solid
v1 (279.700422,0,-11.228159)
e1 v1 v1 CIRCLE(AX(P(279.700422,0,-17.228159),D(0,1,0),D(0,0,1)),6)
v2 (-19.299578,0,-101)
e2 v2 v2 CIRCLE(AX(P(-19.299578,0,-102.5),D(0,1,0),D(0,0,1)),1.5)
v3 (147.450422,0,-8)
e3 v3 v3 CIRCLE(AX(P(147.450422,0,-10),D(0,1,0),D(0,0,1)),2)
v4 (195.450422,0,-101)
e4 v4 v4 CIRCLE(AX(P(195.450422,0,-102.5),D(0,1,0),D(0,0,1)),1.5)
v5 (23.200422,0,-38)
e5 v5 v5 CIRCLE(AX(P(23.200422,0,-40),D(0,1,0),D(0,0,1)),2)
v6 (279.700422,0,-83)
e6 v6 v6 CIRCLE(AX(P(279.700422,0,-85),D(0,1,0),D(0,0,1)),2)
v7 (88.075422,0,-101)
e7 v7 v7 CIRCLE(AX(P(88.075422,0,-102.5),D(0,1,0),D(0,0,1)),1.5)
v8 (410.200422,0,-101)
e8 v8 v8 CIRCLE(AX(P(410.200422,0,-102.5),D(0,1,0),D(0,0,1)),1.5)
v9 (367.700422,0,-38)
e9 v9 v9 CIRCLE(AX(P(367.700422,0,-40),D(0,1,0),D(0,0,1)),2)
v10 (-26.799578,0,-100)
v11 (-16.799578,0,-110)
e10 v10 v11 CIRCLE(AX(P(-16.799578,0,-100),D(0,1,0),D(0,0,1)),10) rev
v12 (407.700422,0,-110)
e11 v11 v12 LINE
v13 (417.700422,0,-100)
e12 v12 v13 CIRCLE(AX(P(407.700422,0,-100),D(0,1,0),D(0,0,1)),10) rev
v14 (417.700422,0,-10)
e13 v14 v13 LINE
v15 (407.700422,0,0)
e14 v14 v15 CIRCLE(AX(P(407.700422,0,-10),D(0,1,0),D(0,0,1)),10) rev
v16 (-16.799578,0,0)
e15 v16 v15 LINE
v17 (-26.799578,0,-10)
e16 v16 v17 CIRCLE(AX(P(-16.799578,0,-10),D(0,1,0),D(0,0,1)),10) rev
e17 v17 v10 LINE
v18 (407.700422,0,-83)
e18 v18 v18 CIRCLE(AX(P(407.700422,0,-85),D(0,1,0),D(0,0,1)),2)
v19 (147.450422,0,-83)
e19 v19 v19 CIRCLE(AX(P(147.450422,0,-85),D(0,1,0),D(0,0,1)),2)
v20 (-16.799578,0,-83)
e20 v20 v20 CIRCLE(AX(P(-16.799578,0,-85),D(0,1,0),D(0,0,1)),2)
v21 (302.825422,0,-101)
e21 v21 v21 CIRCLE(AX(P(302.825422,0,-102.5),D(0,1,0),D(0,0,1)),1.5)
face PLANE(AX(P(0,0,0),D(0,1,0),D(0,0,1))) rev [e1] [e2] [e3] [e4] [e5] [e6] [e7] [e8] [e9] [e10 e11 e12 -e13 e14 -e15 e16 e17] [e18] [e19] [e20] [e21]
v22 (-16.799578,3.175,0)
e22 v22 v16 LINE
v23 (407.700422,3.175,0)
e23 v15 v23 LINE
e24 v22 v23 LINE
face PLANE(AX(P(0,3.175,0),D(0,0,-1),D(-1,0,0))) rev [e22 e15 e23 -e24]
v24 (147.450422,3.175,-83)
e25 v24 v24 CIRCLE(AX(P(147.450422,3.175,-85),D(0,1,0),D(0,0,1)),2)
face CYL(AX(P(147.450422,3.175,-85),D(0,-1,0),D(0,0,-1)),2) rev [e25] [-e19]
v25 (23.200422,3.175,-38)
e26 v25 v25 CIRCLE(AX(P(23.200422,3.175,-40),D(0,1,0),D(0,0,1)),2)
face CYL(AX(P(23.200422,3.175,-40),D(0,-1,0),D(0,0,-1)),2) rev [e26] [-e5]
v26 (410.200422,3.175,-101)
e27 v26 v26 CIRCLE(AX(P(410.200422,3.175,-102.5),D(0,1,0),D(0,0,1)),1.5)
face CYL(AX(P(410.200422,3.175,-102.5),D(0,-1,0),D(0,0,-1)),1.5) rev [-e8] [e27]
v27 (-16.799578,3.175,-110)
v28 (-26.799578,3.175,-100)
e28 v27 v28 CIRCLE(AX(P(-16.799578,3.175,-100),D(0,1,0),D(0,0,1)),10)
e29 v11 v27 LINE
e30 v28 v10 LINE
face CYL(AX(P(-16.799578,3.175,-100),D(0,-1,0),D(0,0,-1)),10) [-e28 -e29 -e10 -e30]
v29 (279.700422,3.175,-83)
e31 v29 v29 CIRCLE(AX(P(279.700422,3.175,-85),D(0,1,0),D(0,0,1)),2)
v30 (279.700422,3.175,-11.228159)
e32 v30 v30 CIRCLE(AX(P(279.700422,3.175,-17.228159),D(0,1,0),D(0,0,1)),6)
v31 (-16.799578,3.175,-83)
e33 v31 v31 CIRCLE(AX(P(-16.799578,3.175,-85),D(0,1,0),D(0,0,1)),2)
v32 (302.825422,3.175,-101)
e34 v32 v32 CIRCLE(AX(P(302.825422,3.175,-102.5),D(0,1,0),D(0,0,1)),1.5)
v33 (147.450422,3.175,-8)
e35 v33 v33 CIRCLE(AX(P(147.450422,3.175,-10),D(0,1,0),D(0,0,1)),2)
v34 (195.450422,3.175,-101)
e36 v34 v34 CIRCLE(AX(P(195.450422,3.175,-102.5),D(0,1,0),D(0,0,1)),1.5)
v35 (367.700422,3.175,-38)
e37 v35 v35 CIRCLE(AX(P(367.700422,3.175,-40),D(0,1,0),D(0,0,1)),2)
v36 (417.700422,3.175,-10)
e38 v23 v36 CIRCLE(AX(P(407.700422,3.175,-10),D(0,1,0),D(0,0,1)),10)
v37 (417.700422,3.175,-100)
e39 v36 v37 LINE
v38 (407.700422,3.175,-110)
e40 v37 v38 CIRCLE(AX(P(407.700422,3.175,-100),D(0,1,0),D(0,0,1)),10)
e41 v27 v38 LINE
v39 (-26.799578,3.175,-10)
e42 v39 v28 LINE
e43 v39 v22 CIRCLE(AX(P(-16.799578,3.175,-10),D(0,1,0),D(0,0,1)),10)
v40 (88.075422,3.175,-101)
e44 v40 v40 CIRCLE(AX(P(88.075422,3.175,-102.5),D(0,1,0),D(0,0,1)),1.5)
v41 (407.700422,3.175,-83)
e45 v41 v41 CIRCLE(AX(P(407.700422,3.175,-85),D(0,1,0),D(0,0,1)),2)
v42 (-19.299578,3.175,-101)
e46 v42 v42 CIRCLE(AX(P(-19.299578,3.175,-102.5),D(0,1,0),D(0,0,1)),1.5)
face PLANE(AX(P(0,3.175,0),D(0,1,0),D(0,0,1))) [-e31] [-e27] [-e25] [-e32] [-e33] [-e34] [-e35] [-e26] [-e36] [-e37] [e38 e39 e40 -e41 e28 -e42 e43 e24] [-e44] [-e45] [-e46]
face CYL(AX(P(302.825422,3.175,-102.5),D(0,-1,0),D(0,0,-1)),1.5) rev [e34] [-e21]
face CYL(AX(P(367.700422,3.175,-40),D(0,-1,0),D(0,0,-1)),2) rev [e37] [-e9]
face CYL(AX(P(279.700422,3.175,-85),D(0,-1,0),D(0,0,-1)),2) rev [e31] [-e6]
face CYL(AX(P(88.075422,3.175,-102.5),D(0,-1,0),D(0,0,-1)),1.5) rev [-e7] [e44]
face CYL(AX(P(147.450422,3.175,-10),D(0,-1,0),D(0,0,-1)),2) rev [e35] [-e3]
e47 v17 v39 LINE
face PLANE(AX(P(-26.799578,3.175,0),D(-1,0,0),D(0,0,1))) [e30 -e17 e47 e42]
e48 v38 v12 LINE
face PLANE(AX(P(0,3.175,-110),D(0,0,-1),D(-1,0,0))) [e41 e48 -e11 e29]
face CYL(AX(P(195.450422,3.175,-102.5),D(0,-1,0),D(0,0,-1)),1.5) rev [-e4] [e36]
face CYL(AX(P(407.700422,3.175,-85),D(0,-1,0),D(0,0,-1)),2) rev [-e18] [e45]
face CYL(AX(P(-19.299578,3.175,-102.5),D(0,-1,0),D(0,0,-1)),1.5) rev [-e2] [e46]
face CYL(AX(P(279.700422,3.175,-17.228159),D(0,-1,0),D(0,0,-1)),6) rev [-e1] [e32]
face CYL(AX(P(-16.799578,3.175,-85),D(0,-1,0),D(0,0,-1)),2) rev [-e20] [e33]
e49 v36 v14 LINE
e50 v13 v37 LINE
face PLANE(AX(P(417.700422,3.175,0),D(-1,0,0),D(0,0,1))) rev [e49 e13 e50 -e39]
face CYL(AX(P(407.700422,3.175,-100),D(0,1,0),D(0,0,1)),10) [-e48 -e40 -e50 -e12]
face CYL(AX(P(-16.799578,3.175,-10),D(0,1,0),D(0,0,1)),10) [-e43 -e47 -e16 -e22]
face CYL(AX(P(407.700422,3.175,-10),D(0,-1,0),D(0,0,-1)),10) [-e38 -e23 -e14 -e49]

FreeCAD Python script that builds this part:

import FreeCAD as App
import Part
import Sketcher

V = App.Vector


def edges_at(feature, points):
    """Names of the edges that pass closest to the given points."""
    edges = feature.Shape.Edges
    near = lambda p: min(range(len(edges)), key=lambda i: edges[i].distToShape(Part.Vertex(*p))[0])
    return sorted({f"Edge{near(p) + 1}" for p in points})

doc = App.newDocument("Part")
body = doc.addObject("PartDesign::Body", "Body")

# Sketch on XZ plane
sketch1 = doc.addObject("Sketcher::SketchObject", "Sketch")
body.addObject(sketch1)
sketch1.AttachmentSupport = (doc.XZ_Plane, [""])
sketch1.MapMode = "FlatFace"
sketch1.addGeometry([
    Part.LineSegment(V(417.700422, -110, 0), V(-26.799578, -110, 0)),  # 0
    Part.LineSegment(V(-26.799578, -110, 0), V(-26.799578, 0, 0)),  # 1
    Part.LineSegment(V(-26.799578, 0, 0), V(417.700422, 0, 0)),  # 2
    Part.LineSegment(V(417.700422, 0, 0), V(417.700422, -110, 0)),  # 3
    Part.Circle(V(147.450422, -10, 0), V(0, 0, 1), 2),  # 4
    Part.Circle(V(23.200422, -40, 0), V(0, 0, 1), 2),  # 5
    Part.Circle(V(279.700422, -17.228159, 0), V(0, 0, 1), 6),  # 6
    Part.Circle(V(367.700422, -40, 0), V(0, 0, 1), 2),  # 7
    Part.Circle(V(-16.799578, -85, 0), V(0, 0, 1), 2),  # 8
    Part.Circle(V(-19.299578, -102.5, 0), V(0, 0, 1), 1.5),  # 9
    Part.Circle(V(147.450422, -85, 0), V(0, 0, 1), 2),  # 10
    Part.Circle(V(88.075422, -102.5, 0), V(0, 0, 1), 1.5),  # 11
    Part.Circle(V(279.700422, -85, 0), V(0, 0, 1), 2),  # 12
    Part.Circle(V(195.450422, -102.5, 0), V(0, 0, 1), 1.5),  # 13
    Part.Circle(V(302.825422, -102.5, 0), V(0, 0, 1), 1.5),  # 14
    Part.Circle(V(407.700422, -85, 0), V(0, 0, 1), 2),  # 15
    Part.Circle(V(410.200422, -102.5, 0), V(0, 0, 1), 1.5),  # 16
], False)
sketch1.addConstraint([
    Sketcher.Constraint("Coincident", 0, 2, 1, 1),
    Sketcher.Constraint("Coincident", 1, 2, 2, 1),
    Sketcher.Constraint("Coincident", 2, 2, 3, 1),
    Sketcher.Constraint("Coincident", 3, 2, 0, 1),
    Sketcher.Constraint("Horizontal", 0),
    Sketcher.Constraint("Vertical", 1),
    Sketcher.Constraint("Horizontal", 2),
    Sketcher.Constraint("Vertical", 3),
    Sketcher.Constraint("Equal", 4, 5),
    Sketcher.Constraint("Equal", 5, 7),
    Sketcher.Constraint("Equal", 7, 8),
    Sketcher.Constraint("Equal", 8, 10),
    Sketcher.Constraint("Equal", 9, 11),
    Sketcher.Constraint("Equal", 10, 12),
    Sketcher.Constraint("Equal", 11, 13),
    Sketcher.Constraint("Equal", 13, 14),
    Sketcher.Constraint("Equal", 12, 15),
    Sketcher.Constraint("Equal", 14, 16),
    Sketcher.Constraint("PointOnObject", 1, 2, -1),
    Sketcher.Constraint("Horizontal", 5, 3, 7, 3),
    Sketcher.Constraint("Horizontal", 8, 3, 10, 3),
    Sketcher.Constraint("Horizontal", 9, 3, 11, 3),
    Sketcher.Constraint("Horizontal", 10, 3, 12, 3),
    Sketcher.Constraint("Horizontal", 11, 3, 13, 3),
    Sketcher.Constraint("Horizontal", 13, 3, 14, 3),
    Sketcher.Constraint("Horizontal", 12, 3, 15, 3),
    Sketcher.Constraint("Horizontal", 14, 3, 16, 3),
    Sketcher.Constraint("Vertical", 4, 3, 10, 3),
    Sketcher.Constraint("Vertical", 6, 3, 12, 3),
    Sketcher.Constraint("Diameter", 4, 4.0),
    Sketcher.Constraint("Diameter", 6, 12.0),
    Sketcher.Constraint("Diameter", 9, 3.0),
    Sketcher.Constraint("DistanceY", 1, 1, 1, 2, 110.0),
    Sketcher.Constraint("DistanceX", 0, 2, 0, 1, 444.5),
    Sketcher.Constraint("DistanceY", 4, 3, -1, 1, 10.0),
    Sketcher.Constraint("DistanceY", 5, 3, -1, 1, 40.0),
    Sketcher.Constraint("DistanceY", 8, 3, -1, 1, 85.0),
    Sketcher.Constraint("DistanceX", 6, 3, 7, 3, 88.0),
    Sketcher.Constraint("DistanceX", 8, 3, 5, 3, 40.0),
    Sketcher.Constraint("DistanceX", 9, 3, 6, 3, 299.0),
    Sketcher.Constraint("DistanceX", 10, 3, 13, 3, 48.0),
    Sketcher.Constraint("DistanceX", 7, 3, 15, 3, 40.0),
    Sketcher.Constraint("DistanceX", 0, 2, 8, 3, 10.0),
    Sketcher.Constraint("DistanceX", 7, 3, 2, 2, 50.0),
    Sketcher.Constraint("DistanceY", 9, 3, -1, 1, 102.5),
    Sketcher.Constraint("DistanceX", 15, 3, 16, 3, 2.5),
    Sketcher.Constraint("DistanceX", 5, 3, 4, 3, 124.25),
    Sketcher.Constraint("DistanceX", 11, 3, 10, 3, 59.375),
    Sketcher.Constraint("DistanceX", 12, 3, 14, 3, 23.125),
    Sketcher.Constraint("DistanceY", 6, 3, -1, 1, 17.228159),
    Sketcher.Constraint("DistanceX", -1, 1, 4, 3, 147.450422),
])
pad1 = doc.addObject("PartDesign::Pad", "Pad")
body.addObject(pad1)
pad1.Profile = sketch1
pad1.Length = 3.175
pad1.Reversed = True
doc.recompute()

fillet = doc.addObject("PartDesign::Fillet", "Fillet")
body.addObject(fillet)
fillet.Base = (pad1, edges_at(pad1, [
    (-26.8, 1.587, -110),
    (417.7, 1.587, -110),
    (417.7, 1.587, 0),
    (-26.8, 1.587, 0),
]))
fillet.Radius = 10

doc.recompute()
